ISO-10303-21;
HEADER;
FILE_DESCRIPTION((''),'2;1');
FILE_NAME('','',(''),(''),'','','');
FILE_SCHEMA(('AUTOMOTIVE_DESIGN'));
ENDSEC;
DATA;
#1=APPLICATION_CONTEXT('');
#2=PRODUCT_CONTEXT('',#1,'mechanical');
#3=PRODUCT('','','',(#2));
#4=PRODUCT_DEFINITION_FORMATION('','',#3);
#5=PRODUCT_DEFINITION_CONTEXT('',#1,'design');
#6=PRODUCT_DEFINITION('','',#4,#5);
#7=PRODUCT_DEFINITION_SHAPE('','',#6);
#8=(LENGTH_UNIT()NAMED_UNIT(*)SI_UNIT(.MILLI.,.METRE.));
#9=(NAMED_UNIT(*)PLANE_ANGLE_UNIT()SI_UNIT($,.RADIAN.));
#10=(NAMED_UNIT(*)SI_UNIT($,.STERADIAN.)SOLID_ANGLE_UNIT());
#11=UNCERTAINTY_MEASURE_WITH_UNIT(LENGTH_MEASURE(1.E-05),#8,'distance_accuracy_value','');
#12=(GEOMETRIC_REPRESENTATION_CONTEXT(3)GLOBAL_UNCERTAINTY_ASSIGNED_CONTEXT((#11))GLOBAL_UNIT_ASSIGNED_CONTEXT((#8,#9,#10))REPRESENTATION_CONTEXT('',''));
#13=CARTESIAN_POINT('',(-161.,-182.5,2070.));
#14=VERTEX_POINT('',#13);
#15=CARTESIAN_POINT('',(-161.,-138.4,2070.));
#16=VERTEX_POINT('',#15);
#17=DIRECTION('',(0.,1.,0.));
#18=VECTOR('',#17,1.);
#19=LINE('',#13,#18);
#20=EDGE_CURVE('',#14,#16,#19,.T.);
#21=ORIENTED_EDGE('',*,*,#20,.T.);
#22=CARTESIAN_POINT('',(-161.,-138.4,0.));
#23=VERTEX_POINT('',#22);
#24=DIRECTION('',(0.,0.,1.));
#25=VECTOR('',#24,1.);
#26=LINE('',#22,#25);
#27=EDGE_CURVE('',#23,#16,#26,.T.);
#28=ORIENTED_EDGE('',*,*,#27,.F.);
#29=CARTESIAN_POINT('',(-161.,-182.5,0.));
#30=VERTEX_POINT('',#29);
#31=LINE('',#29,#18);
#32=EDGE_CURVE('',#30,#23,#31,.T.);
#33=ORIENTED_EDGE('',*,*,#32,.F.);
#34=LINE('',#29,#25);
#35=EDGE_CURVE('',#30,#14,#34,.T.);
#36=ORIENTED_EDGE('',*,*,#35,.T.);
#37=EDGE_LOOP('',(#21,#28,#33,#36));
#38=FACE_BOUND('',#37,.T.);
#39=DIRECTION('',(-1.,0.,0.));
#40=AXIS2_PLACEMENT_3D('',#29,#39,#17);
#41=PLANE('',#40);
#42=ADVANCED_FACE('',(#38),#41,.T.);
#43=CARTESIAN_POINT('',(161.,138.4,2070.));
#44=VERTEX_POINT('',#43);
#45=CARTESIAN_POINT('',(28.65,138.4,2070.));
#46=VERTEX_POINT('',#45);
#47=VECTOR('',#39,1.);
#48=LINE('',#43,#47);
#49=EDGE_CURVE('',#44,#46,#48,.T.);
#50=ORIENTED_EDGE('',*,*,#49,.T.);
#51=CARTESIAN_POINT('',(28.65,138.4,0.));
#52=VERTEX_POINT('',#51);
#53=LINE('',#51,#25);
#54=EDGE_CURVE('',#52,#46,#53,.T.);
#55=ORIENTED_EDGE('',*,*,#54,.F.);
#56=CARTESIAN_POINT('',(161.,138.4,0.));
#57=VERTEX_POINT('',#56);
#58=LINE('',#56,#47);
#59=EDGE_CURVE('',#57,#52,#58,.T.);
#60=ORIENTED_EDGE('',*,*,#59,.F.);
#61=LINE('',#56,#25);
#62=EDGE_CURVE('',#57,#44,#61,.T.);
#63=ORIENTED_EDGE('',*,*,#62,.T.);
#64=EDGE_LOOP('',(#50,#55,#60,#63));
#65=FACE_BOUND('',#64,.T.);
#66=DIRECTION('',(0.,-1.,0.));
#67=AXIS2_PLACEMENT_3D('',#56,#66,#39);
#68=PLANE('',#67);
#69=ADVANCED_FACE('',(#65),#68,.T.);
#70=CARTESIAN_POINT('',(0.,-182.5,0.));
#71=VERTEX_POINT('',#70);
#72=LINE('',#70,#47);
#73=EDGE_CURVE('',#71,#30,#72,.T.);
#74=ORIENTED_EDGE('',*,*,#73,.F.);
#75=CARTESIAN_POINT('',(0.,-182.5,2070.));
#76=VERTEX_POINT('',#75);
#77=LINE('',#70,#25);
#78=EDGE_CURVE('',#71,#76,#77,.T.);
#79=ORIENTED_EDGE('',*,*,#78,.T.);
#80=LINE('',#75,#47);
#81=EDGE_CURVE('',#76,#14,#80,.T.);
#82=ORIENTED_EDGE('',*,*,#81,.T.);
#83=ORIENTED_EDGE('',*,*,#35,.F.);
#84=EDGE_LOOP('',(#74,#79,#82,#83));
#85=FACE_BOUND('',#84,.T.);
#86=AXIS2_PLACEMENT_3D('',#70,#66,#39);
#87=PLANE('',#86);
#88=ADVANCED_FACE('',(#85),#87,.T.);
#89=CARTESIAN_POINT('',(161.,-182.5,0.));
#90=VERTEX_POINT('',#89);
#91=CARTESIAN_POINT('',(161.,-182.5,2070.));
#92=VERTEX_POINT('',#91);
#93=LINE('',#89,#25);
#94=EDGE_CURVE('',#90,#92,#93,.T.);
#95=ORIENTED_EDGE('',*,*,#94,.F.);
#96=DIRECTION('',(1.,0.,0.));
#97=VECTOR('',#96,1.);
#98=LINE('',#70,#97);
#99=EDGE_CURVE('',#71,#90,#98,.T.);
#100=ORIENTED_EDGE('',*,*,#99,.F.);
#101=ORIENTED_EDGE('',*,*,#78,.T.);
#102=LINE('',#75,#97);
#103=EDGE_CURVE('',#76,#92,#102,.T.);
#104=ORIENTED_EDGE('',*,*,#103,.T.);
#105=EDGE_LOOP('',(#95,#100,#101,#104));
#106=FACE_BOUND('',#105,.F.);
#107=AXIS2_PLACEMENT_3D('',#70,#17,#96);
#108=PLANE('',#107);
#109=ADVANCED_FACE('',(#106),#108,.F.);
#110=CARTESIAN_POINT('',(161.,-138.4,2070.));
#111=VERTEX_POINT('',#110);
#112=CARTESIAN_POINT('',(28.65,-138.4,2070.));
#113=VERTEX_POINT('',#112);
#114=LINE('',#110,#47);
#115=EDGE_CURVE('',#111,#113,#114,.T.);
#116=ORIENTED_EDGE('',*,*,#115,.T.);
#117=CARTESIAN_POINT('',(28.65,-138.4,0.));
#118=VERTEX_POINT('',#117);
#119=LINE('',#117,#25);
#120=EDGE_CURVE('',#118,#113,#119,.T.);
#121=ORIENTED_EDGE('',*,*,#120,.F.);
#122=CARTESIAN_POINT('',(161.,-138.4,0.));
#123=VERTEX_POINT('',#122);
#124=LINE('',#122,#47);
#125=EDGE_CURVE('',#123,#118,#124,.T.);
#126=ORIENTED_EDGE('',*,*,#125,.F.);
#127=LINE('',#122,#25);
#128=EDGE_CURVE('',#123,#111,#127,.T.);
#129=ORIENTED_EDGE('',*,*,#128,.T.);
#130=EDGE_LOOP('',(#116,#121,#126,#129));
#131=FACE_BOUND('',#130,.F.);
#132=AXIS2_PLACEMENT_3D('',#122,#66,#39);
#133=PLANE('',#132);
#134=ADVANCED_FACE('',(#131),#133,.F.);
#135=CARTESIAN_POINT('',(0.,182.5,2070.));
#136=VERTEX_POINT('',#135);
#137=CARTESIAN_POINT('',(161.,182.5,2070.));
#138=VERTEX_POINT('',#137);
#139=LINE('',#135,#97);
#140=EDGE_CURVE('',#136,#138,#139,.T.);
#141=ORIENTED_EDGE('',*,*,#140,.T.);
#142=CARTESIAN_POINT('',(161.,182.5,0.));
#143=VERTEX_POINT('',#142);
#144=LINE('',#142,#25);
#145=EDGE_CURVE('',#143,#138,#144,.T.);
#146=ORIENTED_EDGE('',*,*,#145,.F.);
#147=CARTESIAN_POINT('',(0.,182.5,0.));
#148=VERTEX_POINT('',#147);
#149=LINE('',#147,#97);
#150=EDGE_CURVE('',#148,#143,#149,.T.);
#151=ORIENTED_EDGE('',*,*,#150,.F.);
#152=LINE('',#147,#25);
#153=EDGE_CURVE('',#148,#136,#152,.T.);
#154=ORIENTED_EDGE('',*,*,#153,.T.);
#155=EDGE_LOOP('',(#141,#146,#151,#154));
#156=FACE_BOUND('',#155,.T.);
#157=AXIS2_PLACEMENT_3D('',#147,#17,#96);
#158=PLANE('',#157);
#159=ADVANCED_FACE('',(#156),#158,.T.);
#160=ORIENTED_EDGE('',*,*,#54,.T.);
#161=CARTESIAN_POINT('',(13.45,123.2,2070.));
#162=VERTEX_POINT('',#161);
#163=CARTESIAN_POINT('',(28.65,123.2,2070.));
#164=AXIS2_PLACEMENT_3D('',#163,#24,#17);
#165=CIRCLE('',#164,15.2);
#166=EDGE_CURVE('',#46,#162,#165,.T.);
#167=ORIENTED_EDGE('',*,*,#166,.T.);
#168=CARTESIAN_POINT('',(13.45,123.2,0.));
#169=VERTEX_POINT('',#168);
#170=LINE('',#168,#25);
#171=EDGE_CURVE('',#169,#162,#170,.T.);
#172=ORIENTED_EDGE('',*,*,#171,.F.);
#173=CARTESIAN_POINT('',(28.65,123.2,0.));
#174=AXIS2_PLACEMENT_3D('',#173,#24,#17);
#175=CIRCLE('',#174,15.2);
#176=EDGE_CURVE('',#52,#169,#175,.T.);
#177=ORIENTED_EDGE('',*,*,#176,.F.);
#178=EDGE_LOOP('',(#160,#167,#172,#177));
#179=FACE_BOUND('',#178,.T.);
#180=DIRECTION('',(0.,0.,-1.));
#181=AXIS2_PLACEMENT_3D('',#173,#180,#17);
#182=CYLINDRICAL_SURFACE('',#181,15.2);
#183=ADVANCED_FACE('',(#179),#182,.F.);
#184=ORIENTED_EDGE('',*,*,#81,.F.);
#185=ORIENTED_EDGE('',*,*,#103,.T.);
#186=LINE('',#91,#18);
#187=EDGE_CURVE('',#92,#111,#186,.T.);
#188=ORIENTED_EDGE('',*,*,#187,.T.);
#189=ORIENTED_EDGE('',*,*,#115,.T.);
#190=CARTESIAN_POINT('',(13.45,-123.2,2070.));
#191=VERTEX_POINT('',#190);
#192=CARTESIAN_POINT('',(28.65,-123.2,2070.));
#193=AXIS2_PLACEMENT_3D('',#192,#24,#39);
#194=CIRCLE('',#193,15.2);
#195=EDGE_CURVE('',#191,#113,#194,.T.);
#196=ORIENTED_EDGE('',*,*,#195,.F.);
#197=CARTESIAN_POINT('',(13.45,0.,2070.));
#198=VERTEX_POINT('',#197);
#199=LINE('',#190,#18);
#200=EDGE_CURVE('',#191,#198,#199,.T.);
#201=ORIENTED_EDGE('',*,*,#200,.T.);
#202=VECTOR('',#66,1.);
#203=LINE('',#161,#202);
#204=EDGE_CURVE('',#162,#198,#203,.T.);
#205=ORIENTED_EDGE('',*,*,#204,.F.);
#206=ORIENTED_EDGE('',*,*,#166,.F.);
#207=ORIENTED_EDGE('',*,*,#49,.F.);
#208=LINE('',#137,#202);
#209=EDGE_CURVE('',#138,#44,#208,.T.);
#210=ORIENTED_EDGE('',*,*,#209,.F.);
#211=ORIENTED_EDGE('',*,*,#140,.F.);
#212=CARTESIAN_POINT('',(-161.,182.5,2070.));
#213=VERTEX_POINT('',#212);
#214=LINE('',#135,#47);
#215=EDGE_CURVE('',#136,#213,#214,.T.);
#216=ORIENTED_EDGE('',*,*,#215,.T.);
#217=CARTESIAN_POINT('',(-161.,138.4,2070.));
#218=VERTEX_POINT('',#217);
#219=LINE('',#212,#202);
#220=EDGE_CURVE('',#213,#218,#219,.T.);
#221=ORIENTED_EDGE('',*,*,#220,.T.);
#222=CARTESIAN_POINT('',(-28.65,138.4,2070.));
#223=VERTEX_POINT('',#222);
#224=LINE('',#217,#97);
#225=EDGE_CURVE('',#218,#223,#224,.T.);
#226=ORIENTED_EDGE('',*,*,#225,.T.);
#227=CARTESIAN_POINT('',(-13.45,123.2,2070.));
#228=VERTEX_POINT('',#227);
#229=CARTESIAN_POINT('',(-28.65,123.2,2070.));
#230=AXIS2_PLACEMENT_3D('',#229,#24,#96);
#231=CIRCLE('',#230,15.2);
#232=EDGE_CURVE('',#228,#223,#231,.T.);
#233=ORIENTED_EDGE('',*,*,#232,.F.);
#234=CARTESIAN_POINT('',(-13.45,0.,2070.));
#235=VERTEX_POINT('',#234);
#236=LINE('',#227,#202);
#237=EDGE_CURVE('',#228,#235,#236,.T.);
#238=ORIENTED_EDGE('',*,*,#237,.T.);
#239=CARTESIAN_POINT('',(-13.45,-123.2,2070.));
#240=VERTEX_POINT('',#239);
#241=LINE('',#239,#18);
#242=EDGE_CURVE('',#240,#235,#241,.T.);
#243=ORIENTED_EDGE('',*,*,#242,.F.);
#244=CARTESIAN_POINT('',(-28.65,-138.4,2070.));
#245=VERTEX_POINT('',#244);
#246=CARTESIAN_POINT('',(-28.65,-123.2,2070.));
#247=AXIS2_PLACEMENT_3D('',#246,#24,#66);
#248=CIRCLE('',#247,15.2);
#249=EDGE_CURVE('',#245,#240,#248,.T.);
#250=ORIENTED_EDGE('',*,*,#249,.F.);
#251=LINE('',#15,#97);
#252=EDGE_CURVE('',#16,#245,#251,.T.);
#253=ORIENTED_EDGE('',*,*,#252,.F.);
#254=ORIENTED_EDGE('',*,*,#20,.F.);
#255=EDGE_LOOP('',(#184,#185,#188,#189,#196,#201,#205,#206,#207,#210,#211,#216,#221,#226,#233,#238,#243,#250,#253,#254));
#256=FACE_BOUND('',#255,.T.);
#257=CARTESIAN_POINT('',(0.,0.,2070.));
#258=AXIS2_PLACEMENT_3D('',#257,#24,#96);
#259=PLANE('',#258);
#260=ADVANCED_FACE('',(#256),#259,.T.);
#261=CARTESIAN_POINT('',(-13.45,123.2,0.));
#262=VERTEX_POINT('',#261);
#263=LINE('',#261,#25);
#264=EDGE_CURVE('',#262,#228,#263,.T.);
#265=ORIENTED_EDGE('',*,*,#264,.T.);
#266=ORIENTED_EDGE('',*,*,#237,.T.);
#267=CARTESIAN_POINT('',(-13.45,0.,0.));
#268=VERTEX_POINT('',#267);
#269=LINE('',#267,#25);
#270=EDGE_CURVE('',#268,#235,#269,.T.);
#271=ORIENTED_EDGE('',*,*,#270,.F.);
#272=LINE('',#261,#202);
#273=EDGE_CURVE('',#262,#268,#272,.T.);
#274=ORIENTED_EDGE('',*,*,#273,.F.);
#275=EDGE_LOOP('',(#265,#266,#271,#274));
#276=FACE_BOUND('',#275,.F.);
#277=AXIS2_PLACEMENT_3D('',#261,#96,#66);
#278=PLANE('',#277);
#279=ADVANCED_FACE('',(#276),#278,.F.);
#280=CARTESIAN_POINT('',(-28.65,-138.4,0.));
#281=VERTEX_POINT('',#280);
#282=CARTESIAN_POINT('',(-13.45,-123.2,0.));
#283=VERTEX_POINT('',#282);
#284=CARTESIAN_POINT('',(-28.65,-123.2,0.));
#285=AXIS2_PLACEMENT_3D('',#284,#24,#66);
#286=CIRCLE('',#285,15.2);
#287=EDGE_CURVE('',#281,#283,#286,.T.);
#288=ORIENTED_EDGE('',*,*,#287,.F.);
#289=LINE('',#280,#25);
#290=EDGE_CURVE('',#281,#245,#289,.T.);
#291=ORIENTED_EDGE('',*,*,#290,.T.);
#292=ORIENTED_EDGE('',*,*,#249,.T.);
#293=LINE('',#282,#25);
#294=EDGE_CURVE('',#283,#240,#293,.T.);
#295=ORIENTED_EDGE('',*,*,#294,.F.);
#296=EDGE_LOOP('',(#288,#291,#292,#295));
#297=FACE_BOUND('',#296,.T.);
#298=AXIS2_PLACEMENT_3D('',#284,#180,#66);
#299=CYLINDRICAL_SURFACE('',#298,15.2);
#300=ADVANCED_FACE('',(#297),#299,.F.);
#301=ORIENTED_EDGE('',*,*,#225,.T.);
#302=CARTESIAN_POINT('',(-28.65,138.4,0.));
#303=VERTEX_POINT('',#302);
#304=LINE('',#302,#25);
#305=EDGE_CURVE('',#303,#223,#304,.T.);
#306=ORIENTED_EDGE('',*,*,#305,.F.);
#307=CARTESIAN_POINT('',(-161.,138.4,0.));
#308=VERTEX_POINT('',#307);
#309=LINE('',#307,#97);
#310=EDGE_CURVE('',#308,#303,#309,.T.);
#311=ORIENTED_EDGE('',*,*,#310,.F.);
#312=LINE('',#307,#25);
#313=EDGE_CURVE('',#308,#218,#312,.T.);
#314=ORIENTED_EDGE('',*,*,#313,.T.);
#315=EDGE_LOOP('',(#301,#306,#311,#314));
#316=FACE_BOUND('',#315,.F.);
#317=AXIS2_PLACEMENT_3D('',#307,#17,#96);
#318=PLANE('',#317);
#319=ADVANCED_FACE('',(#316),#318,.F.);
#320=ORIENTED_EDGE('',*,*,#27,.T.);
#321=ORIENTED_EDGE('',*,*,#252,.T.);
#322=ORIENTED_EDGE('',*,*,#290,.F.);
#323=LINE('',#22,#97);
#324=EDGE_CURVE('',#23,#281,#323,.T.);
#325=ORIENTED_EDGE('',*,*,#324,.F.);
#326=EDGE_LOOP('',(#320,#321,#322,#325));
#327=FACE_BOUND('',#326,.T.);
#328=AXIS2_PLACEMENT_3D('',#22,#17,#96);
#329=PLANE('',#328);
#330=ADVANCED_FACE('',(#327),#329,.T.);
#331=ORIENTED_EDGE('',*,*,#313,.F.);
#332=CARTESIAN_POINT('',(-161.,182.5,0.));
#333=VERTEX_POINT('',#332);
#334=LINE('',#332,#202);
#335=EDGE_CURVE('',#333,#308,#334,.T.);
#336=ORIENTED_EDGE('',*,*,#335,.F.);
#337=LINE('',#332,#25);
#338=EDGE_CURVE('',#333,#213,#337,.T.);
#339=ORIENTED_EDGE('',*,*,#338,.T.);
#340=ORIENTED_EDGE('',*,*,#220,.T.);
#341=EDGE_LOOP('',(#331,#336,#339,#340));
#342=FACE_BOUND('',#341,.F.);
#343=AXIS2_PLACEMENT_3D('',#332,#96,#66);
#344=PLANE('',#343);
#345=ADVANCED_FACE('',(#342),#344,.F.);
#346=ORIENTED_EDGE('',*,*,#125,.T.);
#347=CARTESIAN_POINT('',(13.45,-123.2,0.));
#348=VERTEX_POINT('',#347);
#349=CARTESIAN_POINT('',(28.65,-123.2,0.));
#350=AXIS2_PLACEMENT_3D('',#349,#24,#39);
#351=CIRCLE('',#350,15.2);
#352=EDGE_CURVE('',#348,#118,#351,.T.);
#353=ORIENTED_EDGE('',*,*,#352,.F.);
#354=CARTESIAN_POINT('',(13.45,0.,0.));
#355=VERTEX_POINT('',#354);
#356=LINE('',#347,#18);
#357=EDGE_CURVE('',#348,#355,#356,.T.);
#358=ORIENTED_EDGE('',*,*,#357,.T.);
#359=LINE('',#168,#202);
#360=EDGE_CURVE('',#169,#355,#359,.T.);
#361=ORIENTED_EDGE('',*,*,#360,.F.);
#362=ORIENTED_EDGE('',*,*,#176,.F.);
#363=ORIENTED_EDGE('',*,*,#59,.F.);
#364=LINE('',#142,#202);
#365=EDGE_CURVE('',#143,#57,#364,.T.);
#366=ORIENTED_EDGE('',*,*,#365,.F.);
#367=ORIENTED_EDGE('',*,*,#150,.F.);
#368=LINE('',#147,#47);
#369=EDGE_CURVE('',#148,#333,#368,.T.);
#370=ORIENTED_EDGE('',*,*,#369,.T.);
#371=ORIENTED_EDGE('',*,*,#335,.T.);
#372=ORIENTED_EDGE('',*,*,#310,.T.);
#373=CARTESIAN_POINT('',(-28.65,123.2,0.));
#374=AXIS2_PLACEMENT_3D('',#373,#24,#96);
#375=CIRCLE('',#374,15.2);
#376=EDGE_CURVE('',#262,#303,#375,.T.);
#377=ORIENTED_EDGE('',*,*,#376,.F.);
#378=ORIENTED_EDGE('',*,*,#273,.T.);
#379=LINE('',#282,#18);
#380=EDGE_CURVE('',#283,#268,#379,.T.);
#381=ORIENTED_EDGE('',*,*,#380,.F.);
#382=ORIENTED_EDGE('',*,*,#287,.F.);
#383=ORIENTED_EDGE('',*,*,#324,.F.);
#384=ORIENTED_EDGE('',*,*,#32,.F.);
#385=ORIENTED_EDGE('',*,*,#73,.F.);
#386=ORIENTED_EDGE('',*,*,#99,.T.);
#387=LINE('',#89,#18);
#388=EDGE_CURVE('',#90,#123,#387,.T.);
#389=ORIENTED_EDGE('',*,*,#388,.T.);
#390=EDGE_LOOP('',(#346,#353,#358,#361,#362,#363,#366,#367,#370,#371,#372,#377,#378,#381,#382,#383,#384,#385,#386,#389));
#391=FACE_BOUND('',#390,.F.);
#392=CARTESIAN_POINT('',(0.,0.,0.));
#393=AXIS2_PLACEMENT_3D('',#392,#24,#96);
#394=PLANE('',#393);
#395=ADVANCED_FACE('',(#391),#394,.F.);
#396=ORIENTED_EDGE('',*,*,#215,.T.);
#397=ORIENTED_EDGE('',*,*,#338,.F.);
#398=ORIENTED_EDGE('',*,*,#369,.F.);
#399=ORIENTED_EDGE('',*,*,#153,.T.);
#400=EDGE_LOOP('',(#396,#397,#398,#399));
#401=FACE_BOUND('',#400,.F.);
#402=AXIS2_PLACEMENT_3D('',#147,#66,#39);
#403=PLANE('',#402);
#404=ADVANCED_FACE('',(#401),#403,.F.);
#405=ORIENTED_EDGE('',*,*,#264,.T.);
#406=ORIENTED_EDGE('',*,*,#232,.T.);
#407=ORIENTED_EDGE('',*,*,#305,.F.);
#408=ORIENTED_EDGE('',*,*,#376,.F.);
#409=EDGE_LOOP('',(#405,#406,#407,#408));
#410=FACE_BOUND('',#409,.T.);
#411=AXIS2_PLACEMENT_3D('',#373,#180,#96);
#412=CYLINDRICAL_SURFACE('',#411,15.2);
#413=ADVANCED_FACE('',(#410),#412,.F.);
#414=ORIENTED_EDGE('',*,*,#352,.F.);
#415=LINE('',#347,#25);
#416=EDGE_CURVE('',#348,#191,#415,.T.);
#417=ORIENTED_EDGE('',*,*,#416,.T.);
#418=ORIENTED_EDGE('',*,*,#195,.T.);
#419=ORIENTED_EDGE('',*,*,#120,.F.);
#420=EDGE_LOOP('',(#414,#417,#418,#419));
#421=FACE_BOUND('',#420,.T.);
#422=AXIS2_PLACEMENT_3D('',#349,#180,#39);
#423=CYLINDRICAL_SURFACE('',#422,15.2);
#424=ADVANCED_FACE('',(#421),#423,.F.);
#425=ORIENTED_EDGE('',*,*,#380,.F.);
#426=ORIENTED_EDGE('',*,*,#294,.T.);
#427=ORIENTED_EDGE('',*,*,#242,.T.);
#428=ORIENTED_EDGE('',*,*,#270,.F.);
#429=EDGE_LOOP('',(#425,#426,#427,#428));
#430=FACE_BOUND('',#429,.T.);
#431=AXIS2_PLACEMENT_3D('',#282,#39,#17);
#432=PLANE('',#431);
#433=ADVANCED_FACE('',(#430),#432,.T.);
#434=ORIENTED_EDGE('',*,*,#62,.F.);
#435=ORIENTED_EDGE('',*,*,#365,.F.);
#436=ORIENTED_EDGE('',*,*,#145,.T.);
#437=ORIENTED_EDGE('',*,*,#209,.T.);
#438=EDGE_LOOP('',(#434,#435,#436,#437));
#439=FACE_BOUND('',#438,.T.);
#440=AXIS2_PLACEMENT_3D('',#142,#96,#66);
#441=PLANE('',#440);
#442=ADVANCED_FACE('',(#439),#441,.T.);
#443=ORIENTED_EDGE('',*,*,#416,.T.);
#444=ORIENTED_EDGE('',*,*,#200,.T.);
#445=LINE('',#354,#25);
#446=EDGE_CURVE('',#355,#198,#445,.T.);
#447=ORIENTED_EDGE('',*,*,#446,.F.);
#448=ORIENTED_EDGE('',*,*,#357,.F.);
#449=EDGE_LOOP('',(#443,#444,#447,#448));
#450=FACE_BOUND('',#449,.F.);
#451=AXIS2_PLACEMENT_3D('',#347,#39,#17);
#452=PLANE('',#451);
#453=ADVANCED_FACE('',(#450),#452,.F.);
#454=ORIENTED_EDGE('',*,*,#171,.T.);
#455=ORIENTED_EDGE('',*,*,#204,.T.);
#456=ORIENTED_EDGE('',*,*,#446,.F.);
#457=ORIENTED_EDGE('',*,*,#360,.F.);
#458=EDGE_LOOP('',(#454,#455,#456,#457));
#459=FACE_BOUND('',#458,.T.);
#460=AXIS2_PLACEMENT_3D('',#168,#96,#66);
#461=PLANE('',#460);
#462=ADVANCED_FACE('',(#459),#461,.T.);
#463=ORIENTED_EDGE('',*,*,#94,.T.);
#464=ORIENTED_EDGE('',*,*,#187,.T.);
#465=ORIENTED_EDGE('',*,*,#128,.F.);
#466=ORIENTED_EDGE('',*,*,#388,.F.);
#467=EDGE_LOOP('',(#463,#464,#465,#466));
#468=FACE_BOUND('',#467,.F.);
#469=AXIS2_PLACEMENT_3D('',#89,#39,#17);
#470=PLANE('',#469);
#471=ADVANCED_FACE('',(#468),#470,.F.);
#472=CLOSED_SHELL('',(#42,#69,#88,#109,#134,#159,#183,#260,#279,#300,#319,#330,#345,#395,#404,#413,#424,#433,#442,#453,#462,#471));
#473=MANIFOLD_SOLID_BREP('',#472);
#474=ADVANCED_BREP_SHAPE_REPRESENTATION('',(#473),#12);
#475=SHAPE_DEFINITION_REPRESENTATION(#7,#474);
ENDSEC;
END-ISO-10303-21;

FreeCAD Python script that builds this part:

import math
import FreeCAD as App
import Part
import Sketcher
from FreeCAD import Vector

doc = App.newDocument("Part")
params = doc.addObject("Spreadsheet::Sheet", "Params")
for row, (alias, value) in enumerate([
    ("sketch1_radius", "15.2 mm"),
    ("sketch1_height", "44.1 mm"),
    ("pad1_length", "2070 mm"),
], start=1):
    params.set(f"A{row}", alias)
    params.set(f"B{row}", "=" + value)
    params.setAlias(f"B{row}", alias)

body = doc.addObject("PartDesign::Body", "Body")

# Sketch on XY plane
sketch1 = body.newObject("Sketcher::SketchObject", "Sketch")
sketch1.AttachmentSupport = (doc.getObject("XY_Plane"), [""])
sketch1.MapMode = "FlatFace"
sketch1.addGeometry([
    Part.LineSegment(Vector(-161, -138.4, 0), Vector(-161, -182.5, 0)),  # 0
    Part.LineSegment(Vector(-161, -182.5, 0), Vector(161, -182.5, 0)),  # 1
    Part.LineSegment(Vector(161, -182.5, 0), Vector(161, -138.4, 0)),  # 2
    Part.LineSegment(Vector(161, -138.4, 0), Vector(28.65, -138.4, 0)),  # 3
    Part.ArcOfCircle(Part.Circle(Vector(28.65, -123.2, 0), Vector(0, 0, 1), 15.2), math.radians(180), math.radians(270)),  # 4
    Part.LineSegment(Vector(13.45, -123.2, 0), Vector(13.45, 123.2, 0)),  # 5
    Part.ArcOfCircle(Part.Circle(Vector(28.65, 123.2, 0), Vector(0, 0, 1), 15.2), math.radians(90), math.radians(180)),  # 6
    Part.LineSegment(Vector(28.65, 138.4, 0), Vector(161, 138.4, 0)),  # 7
    Part.LineSegment(Vector(161, 138.4, 0), Vector(161, 182.5, 0)),  # 8
    Part.LineSegment(Vector(161, 182.5, 0), Vector(-161, 182.5, 0)),  # 9
    Part.LineSegment(Vector(-161, 182.5, 0), Vector(-161, 138.4, 0)),  # 10
    Part.LineSegment(Vector(-161, 138.4, 0), Vector(-28.65, 138.4, 0)),  # 11
    Part.ArcOfCircle(Part.Circle(Vector(-28.65, 123.2, 0), Vector(0, 0, 1), 15.2), math.radians(0), math.radians(90)),  # 12
    Part.LineSegment(Vector(-13.45, 123.2, 0), Vector(-13.45, -123.2, 0)),  # 13
    Part.ArcOfCircle(Part.Circle(Vector(-28.65, -123.2, 0), Vector(0, 0, 1), 15.2), math.radians(-90), math.radians(0)),  # 14
    Part.LineSegment(Vector(-28.65, -138.4, 0), Vector(-161, -138.4, 0)),  # 15
], False)
sketch1.addConstraint([
    Sketcher.Constraint("Coincident", 0, 2, 1, 1),
    Sketcher.Constraint("Coincident", 1, 2, 2, 1),
    Sketcher.Constraint("Coincident", 2, 2, 3, 1),
    Sketcher.Constraint("Tangent", 3, 2, 4, 2),
    Sketcher.Constraint("Tangent", 4, 1, 5, 1),
    Sketcher.Constraint("Tangent", 5, 2, 6, 2),
    Sketcher.Constraint("Tangent", 6, 1, 7, 1),
    Sketcher.Constraint("Coincident", 7, 2, 8, 1),
    Sketcher.Constraint("Coincident", 8, 2, 9, 1),
    Sketcher.Constraint("Coincident", 9, 2, 10, 1),
    Sketcher.Constraint("Coincident", 10, 2, 11, 1),
    Sketcher.Constraint("Tangent", 11, 2, 12, 2),
    Sketcher.Constraint("Tangent", 12, 1, 13, 1),
    Sketcher.Constraint("Tangent", 13, 2, 14, 2),
    Sketcher.Constraint("Tangent", 14, 1, 15, 1),
    Sketcher.Constraint("Coincident", 15, 2, 0, 1),
    Sketcher.Constraint("Vertical", 0),
    Sketcher.Constraint("Horizontal", 1),
    Sketcher.Constraint("Vertical", 2),
    Sketcher.Constraint("Horizontal", 3),
    Sketcher.Constraint("Vertical", 5),
    Sketcher.Constraint("Horizontal", 7),
    Sketcher.Constraint("Vertical", 8),
    Sketcher.Constraint("Horizontal", 9),
    Sketcher.Constraint("Vertical", 10),
    Sketcher.Constraint("Horizontal", 11),
    Sketcher.Constraint("Vertical", 13),
    Sketcher.Constraint("Horizontal", 15),
    Sketcher.Constraint("Equal", 4, 6),
    Sketcher.Constraint("Equal", 6, 12),
    Sketcher.Constraint("Equal", 12, 14),
    Sketcher.Constraint("Symmetric", 4, 3, 12, 3, -1, 1),
    Sketcher.Constraint("Symmetric", 0, 2, 8, 2, -1, 1),
    Sketcher.Constraint("Symmetric", 7, 2, 10, 2, -2),
    Sketcher.Constraint("Symmetric", 2, 2, 15, 2, -2),
    Sketcher.Constraint("Radius", 4, 15.2),
    Sketcher.Constraint("DistanceY", 0, 2, 0, 1, 44.1),
    Sketcher.Constraint("DistanceX", 0, 2, -1, 1, 161.0),
    Sketcher.Constraint("DistanceY", 0, 2, -1, 1, 182.5),
    Sketcher.Constraint("DistanceX", -1, 1, 4, 1, 13.45),
])
sketch1.setExpression("Constraints[35]", "Params.sketch1_radius")
sketch1.setExpression("Constraints[36]", "Params.sketch1_height")
pad1 = body.newObject("PartDesign::Pad", "Pad")
pad1.Profile = sketch1
pad1.setExpression("Length", "Params.pad1_length")

doc.recompute()
